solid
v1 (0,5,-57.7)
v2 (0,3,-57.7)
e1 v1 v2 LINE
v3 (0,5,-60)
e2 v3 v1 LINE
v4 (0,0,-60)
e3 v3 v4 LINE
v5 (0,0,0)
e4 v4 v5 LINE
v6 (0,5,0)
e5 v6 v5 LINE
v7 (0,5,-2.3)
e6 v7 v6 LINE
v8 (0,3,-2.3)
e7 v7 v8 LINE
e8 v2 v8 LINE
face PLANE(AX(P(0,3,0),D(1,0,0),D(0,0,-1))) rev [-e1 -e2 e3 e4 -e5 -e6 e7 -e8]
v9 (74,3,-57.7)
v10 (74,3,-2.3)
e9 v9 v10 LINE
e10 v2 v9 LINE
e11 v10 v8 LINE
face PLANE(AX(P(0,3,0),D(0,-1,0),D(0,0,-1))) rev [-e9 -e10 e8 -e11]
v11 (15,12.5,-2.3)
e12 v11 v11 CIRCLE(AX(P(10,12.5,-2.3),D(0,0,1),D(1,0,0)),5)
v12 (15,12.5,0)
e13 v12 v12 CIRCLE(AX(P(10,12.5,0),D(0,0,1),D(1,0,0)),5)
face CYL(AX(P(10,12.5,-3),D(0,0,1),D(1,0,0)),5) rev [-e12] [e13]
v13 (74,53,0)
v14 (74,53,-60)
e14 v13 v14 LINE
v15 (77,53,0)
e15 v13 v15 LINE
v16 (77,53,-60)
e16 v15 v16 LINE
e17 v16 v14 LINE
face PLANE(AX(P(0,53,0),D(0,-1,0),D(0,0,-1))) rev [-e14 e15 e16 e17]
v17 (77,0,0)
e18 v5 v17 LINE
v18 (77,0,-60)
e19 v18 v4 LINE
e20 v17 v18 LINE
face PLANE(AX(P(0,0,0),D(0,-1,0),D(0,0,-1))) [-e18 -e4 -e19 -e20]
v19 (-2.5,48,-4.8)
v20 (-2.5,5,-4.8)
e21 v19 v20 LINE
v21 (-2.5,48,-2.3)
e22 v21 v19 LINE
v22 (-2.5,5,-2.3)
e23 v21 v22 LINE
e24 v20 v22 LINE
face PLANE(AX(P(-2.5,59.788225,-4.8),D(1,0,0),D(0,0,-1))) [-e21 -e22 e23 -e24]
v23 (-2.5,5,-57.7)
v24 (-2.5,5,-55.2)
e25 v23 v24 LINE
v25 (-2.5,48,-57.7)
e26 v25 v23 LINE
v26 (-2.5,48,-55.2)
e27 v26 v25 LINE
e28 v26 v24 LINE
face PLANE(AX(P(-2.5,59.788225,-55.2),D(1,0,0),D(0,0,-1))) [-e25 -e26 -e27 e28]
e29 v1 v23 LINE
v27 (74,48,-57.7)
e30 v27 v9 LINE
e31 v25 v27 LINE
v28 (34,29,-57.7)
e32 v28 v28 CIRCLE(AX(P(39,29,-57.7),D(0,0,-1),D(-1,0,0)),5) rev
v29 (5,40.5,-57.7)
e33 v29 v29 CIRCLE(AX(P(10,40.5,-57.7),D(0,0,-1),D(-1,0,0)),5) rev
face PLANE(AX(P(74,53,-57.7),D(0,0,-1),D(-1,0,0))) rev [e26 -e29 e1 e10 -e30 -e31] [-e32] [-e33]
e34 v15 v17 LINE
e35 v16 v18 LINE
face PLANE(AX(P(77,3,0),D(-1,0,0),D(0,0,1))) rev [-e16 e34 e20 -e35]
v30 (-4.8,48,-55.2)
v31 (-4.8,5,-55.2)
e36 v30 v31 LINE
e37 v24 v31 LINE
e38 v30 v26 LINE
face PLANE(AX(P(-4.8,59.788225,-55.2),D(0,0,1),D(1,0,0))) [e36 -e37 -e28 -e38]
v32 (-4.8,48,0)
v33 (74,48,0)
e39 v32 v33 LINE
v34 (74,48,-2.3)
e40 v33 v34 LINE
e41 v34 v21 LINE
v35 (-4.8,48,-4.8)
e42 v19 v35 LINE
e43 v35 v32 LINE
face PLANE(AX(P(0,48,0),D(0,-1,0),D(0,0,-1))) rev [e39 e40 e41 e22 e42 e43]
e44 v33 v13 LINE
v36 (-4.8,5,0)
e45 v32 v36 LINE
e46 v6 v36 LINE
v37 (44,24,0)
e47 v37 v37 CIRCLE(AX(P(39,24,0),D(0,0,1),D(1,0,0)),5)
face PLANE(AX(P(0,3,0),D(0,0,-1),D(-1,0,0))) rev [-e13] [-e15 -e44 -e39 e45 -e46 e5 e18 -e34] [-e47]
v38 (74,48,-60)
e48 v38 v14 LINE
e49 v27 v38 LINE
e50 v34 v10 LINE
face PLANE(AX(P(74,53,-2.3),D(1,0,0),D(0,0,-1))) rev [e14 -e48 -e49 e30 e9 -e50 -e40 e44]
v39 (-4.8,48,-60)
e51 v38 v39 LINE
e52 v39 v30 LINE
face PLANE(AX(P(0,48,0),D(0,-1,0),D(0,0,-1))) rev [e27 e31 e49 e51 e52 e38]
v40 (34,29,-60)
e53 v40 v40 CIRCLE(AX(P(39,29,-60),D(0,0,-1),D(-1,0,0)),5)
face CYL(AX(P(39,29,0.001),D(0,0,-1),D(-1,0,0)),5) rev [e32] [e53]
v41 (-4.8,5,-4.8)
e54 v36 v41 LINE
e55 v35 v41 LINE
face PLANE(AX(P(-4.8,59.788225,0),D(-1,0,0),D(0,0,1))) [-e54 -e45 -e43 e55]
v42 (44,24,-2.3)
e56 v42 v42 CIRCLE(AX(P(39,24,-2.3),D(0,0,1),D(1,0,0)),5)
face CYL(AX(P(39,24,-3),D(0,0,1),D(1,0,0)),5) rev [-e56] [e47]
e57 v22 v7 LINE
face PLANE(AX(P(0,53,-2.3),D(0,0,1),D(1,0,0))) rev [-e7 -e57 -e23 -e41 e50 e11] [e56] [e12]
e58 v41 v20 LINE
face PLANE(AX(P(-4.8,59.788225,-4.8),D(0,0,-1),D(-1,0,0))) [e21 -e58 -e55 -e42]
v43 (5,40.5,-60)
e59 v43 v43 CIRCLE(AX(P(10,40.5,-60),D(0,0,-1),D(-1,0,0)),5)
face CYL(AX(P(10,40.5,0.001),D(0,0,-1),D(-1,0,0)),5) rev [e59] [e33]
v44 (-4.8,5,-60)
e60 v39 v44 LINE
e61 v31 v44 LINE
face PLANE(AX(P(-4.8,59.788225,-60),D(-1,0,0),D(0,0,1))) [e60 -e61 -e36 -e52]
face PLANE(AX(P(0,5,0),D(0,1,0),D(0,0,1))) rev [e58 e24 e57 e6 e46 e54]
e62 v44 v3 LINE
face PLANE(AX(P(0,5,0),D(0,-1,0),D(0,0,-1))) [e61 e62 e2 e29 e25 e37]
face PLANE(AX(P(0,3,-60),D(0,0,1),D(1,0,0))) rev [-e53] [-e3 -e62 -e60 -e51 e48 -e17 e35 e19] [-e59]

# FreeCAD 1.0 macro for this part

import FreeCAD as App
import Part
import Sketcher
Q = App.Units.Quantity

doc = App.newDocument("Part")
params = doc.addObject("Spreadsheet::Sheet", "Params")
for row, (alias, value) in enumerate([
    ("sketch1_width", "77 mm"),
    ("sketch1_height", "60 mm"),
    ("pad1_length", "3 mm"),
    ("sketch2_width", "77 mm"),
    ("sketch2_width2", "74 mm"),
    ("sketch2_height", "60 mm"),
    ("sketch2_height2", "2.3 mm"),
    ("pad2_length", "50 mm"),
    ("sketch3_width", "3 mm"),
    ("sketch3_height", "55.4 mm"),
    ("pad3_length", "74 mm"),
    ("sketch4_diameter", "10 mm"),
    ("sketch5_diameter", "10 mm"),
    ("sketch6_width", "4.8 mm"),
    ("sketch6_width2", "2.3 mm"),
    ("pad4_length", "48 mm"),
    ("sketch7_width", "5 mm"),
    ("sketch7_height", "10 mm"),
    ("sketch8_width", "2.5 mm"),
    ("sketch8_width2", "4.8 mm"),
    ("pocket4_length", "5 mm"),
    ("sketch9_diameter", "10 mm"),
    ("pocket5_length", "3 mm"),
    ("sketch10_width", "74 mm"),
    ("sketch10_height", "60 mm"),
    ("pocket6_length", "5 mm"),
], start=1):
    params.set(f"A{row}", alias)
    params.set(f"B{row}", "=" + value)
    params.setAlias(f"B{row}", alias)

body = doc.addObject("PartDesign::Body", "Body")

sketch1 = body.newObject("Sketcher::SketchObject", "Sketch")
sketch1.AttachmentSupport = (doc.getObject("XZ_Plane"), [""])
sketch1.MapMode = "FlatFace"
sketch1.addGeometry(Part.LineSegment(App.Vector(0, -60, 0), App.Vector(0, 0, 0)), False)
sketch1.addGeometry(Part.LineSegment(App.Vector(0, 0, 0), App.Vector(77, 0, 0)), False)
sketch1.addGeometry(Part.LineSegment(App.Vector(77, 0, 0), App.Vector(77, -60, 0)), False)
sketch1.addGeometry(Part.LineSegment(App.Vector(77, -60, 0), App.Vector(0, -60, 0)), False)
sketch1.addConstraint(Sketcher.Constraint("Coincident", 0, 2, 1, 1))
sketch1.addConstraint(Sketcher.Constraint("Coincident", 1, 2, 2, 1))
sketch1.addConstraint(Sketcher.Constraint("Coincident", 2, 2, 3, 1))
sketch1.addConstraint(Sketcher.Constraint("Coincident", 3, 2, 0, 1))
sketch1.addConstraint(Sketcher.Constraint("Vertical", 0))
sketch1.addConstraint(Sketcher.Constraint("Horizontal", 1))
sketch1.addConstraint(Sketcher.Constraint("Vertical", 2))
sketch1.addConstraint(Sketcher.Constraint("Horizontal", 3))
sketch1.addConstraint(Sketcher.Constraint("Coincident", 0, 2, -1, 1))
sketch1.addConstraint(Sketcher.Constraint("DistanceX", 1, 1, 1, 2, Q("77 mm")))
sketch1.addConstraint(Sketcher.Constraint("DistanceY", 0, 1, 0, 2, Q("60 mm")))
sketch1.setExpression("Constraints[9]", "Params.sketch1_width")
sketch1.setExpression("Constraints[10]", "Params.sketch1_height")
pad1 = body.newObject("PartDesign::Pad", "Pad")
pad1.Profile = sketch1
pad1.setExpression("Length", "Params.pad1_length")
pad1.Reversed = True

sketch2 = body.newObject("Sketcher::SketchObject", "Sketch001")
sketch2.AttachmentSupport = (doc.getObject("XZ_Plane"), [""])
sketch2.MapMode = "FlatFace"
sketch2.AttachmentOffset = App.Placement(App.Vector(0, 0, -3), App.Rotation())
sketch2.addGeometry(Part.LineSegment(App.Vector(77, -60, 0), App.Vector(0, -60, 0)), False)
sketch2.addGeometry(Part.LineSegment(App.Vector(0, -60, 0), App.Vector(0, -57.7, 0)), False)
sketch2.addGeometry(Part.LineSegment(App.Vector(0, -57.7, 0), App.Vector(74, -57.7, 0)), False)
sketch2.addGeometry(Part.LineSegment(App.Vector(74, -57.7, 0), App.Vector(74, -2.3, 0)), False)
sketch2.addGeometry(Part.LineSegment(App.Vector(74, -2.3, 0), App.Vector(0, -2.3, 0)), False)
sketch2.addGeometry(Part.LineSegment(App.Vector(0, -2.3, 0), App.Vector(0, 0, 0)), False)
sketch2.addGeometry(Part.LineSegment(App.Vector(0, 0, 0), App.Vector(77, 0, 0)), False)
sketch2.addGeometry(Part.LineSegment(App.Vector(77, 0, 0), App.Vector(77, -60, 0)), False)
sketch2.addConstraint(Sketcher.Constraint("Coincident", 0, 2, 1, 1))
sketch2.addConstraint(Sketcher.Constraint("Coincident", 1, 2, 2, 1))
sketch2.addConstraint(Sketcher.Constraint("Coincident", 2, 2, 3, 1))
sketch2.addConstraint(Sketcher.Constraint("Coincident", 3, 2, 4, 1))
sketch2.addConstraint(Sketcher.Constraint("Coincident", 4, 2, 5, 1))
sketch2.addConstraint(Sketcher.Constraint("Coincident", 5, 2, 6, 1))
sketch2.addConstraint(Sketcher.Constraint("Coincident", 6, 2, 7, 1))
sketch2.addConstraint(Sketcher.Constraint("Coincident", 7, 2, 0, 1))
sketch2.addConstraint(Sketcher.Constraint("Horizontal", 0))
sketch2.addConstraint(Sketcher.Constraint("Vertical", 1))
sketch2.addConstraint(Sketcher.Constraint("Horizontal", 2))
sketch2.addConstraint(Sketcher.Constraint("Vertical", 3))
sketch2.addConstraint(Sketcher.Constraint("Horizontal", 4))
sketch2.addConstraint(Sketcher.Constraint("Vertical", 5))
sketch2.addConstraint(Sketcher.Constraint("Horizontal", 6))
sketch2.addConstraint(Sketcher.Constraint("Vertical", 7))
sketch2.addConstraint(Sketcher.Constraint("Coincident", 5, 2, -1, 1))
sketch2.addConstraint(Sketcher.Constraint("PointOnObject", 0, 2, -2))
sketch2.addConstraint(Sketcher.Constraint("Equal", 1, 5))
sketch2.addConstraint(Sketcher.Constraint("DistanceX", 0, 2, 0, 1, Q("77 mm")))
sketch2.addConstraint(Sketcher.Constraint("DistanceX", 2, 1, 2, 2, Q("74 mm")))
sketch2.addConstraint(Sketcher.Constraint("DistanceY", 7, 2, 7, 1, Q("60 mm")))
sketch2.addConstraint(Sketcher.Constraint("DistanceY", 1, 1, 1, 2, Q("2.3 mm")))
sketch2.setExpression("Constraints[19]", "Params.sketch2_width")
sketch2.setExpression("Constraints[20]", "Params.sketch2_width2")
sketch2.setExpression("Constraints[21]", "Params.sketch2_height")
sketch2.setExpression("Constraints[22]", "Params.sketch2_height2")
pad2 = body.newObject("PartDesign::Pad", "Pad001")
pad2.Profile = sketch2
pad2.setExpression("Length", "Params.pad2_length")
pad2.Reversed = True

sketch3 = body.newObject("Sketcher::SketchObject", "Sketch002")
sketch3.AttachmentSupport = (doc.getObject("YZ_Plane"), [""])
sketch3.MapMode = "FlatFace"
sketch3.AttachmentOffset = App.Placement(App.Vector(0, 0, 74), App.Rotation())
sketch3.addGeometry(Part.LineSegment(App.Vector(53, -57.7, 0), App.Vector(50, -57.7, 0)), False)
sketch3.addGeometry(Part.LineSegment(App.Vector(50, -57.7, 0), App.Vector(50, -2.3, 0)), False)
sketch3.addGeometry(Part.LineSegment(App.Vector(50, -2.3, 0), App.Vector(53, -2.3, 0)), False)
sketch3.addGeometry(Part.LineSegment(App.Vector(53, -2.3, 0), App.Vector(53, -57.7, 0)), False)
sketch3.addConstraint(Sketcher.Constraint("Coincident", 0, 2, 1, 1))
sketch3.addConstraint(Sketcher.Constraint("Coincident", 1, 2, 2, 1))
sketch3.addConstraint(Sketcher.Constraint("Coincident", 2, 2, 3, 1))
sketch3.addConstraint(Sketcher.Constraint("Coincident", 3, 2, 0, 1))
sketch3.addConstraint(Sketcher.Constraint("Horizontal", 0))
sketch3.addConstraint(Sketcher.Constraint("Vertical", 1))
sketch3.addConstraint(Sketcher.Constraint("Horizontal", 2))
sketch3.addConstraint(Sketcher.Constraint("Vertical", 3))
sketch3.addConstraint(Sketcher.Constraint("DistanceX", 0, 2, 0, 1, Q("3 mm")))
sketch3.addConstraint(Sketcher.Constraint("DistanceY", 1, 1, 1, 2, Q("55.4 mm")))
sketch3.addConstraint(Sketcher.Constraint("DistanceX", -1, 1, 0, 2, Q("50 mm")))
sketch3.addConstraint(Sketcher.Constraint("DistanceY", 0, 2, -1, 1, Q("57.7 mm")))
sketch3.setExpression("Constraints[8]", "Params.sketch3_width")
sketch3.setExpression("Constraints[9]", "Params.sketch3_height")
pad3 = body.newObject("PartDesign::Pad", "Pad002")
pad3.Profile = sketch3
pad3.setExpression("Length", "Params.pad3_length")
pad3.Reversed = True

sketch4 = body.newObject("Sketcher::SketchObject", "Sketch003")
sketch4.AttachmentSupport = (doc.getObject("XY_Plane"), [""])
sketch4.MapMode = "FlatFace"
sketch4.AttachmentOffset = App.Placement(App.Vector(0, 0, -60), App.Rotation())
sketch4.addGeometry(Part.Circle(App.Vector(39, 29, 0), App.Vector(0, 0, 1), 5), False)
sketch4.addConstraint(Sketcher.Constraint("Diameter", 0, Q("10 mm")))
sketch4.addConstraint(Sketcher.Constraint("DistanceX", -1, 1, 0, 3, Q("39 mm")))
sketch4.addConstraint(Sketcher.Constraint("DistanceY", -1, 1, 0, 3, Q("29 mm")))
sketch4.setExpression("Constraints[0]", "Params.sketch4_diameter")
pocket1 = body.newObject("PartDesign::Pocket", "Pocket")
pocket1.Profile = sketch4
pocket1.Type = "UpToFirst"
pocket1.Reversed = True

sketch5 = body.newObject("Sketcher::SketchObject", "Sketch004")
sketch5.AttachmentSupport = (doc.getObject("XY_Plane"), [""])
sketch5.MapMode = "FlatFace"
sketch5.AttachmentOffset = App.Placement(App.Vector(0, 0, -60), App.Rotation())
sketch5.addGeometry(Part.Circle(App.Vector(10, 40, 0), App.Vector(0, 0, 1), 5), False)
sketch5.addConstraint(Sketcher.Constraint("Diameter", 0, Q("10 mm")))
sketch5.addConstraint(Sketcher.Constraint("DistanceX", -1, 1, 0, 3, Q("10 mm")))
sketch5.addConstraint(Sketcher.Constraint("DistanceY", -1, 1, 0, 3, Q("40.5 mm")))
sketch5.setExpression("Constraints[0]", "Params.sketch5_diameter")
pocket2 = body.newObject("PartDesign::Pocket", "Pocket001")
pocket2.Profile = sketch5
pocket2.Type = "UpToFirst"
pocket2.Reversed = True

sketch6 = body.newObject("Sketcher::SketchObject", "Sketch005")
sketch6.AttachmentSupport = (doc.getObject("XZ_Plane"), [""])
sketch6.MapMode = "FlatFace"
sketch6.addGeometry(Part.LineSegment(App.Vector(0, 0, 0), App.Vector(-4.8, 0, 0)), False)
sketch6.addGeometry(Part.LineSegment(App.Vector(-4.8, 0, 0), App.Vector(-4.8, -4.8, 0)), False)
sketch6.addGeometry(Part.LineSegment(App.Vector(-4.8, -4.8, 0), App.Vector(-2.5, -4.8, 0)), False)
sketch6.addGeometry(Part.LineSegment(App.Vector(-2.5, -4.8, 0), App.Vector(-2.5, -2.3, 0)), False)
sketch6.addGeometry(Part.LineSegment(App.Vector(-2.5, -2.3, 0), App.Vector(0, -2.3, 0)), False)
sketch6.addGeometry(Part.LineSegment(App.Vector(0, -2.3, 0), App.Vector(0, 0, 0)), False)
sketch6.addGeometry(Part.LineSegment(App.Vector(0, -60, 0), App.Vector(0, -57.7, 0)), False)
sketch6.addGeometry(Part.LineSegment(App.Vector(0, -57.7, 0), App.Vector(-2.5, -57.7, 0)), False)
sketch6.addGeometry(Part.LineSegment(App.Vector(-2.5, -57.7, 0), App.Vector(-2.5, -55.2, 0)), False)
sketch6.addGeometry(Part.LineSegment(App.Vector(-2.5, -55.2, 0), App.Vector(-4.8, -55.2, 0)), False)
sketch6.addGeometry(Part.LineSegment(App.Vector(-4.8, -55.2, 0), App.Vector(-4.8, -60, 0)), False)
sketch6.addGeometry(Part.LineSegment(App.Vector(-4.8, -60, 0), App.Vector(0, -60, 0)), False)
sketch6.addConstraint(Sketcher.Constraint("Coincident", 0, 2, 1, 1))
sketch6.addConstraint(Sketcher.Constraint("Coincident", 1, 2, 2, 1))
sketch6.addConstraint(Sketcher.Constraint("Coincident", 2, 2, 3, 1))
sketch6.addConstraint(Sketcher.Constraint("Coincident", 3, 2, 4, 1))
sketch6.addConstraint(Sketcher.Constraint("Coincident", 4, 2, 5, 1))
sketch6.addConstraint(Sketcher.Constraint("Coincident", 5, 2, 0, 1))
sketch6.addConstraint(Sketcher.Constraint("Coincident", 6, 2, 7, 1))
sketch6.addConstraint(Sketcher.Constraint("Coincident", 7, 2, 8, 1))
sketch6.addConstraint(Sketcher.Constraint("Coincident", 8, 2, 9, 1))
sketch6.addConstraint(Sketcher.Constraint("Coincident", 9, 2, 10, 1))
sketch6.addConstraint(Sketcher.Constraint("Coincident", 10, 2, 11, 1))
sketch6.addConstraint(Sketcher.Constraint("Coincident", 11, 2, 6, 1))
sketch6.addConstraint(Sketcher.Constraint("Horizontal", 0))
sketch6.addConstraint(Sketcher.Constraint("Vertical", 1))
sketch6.addConstraint(Sketcher.Constraint("Horizontal", 2))
sketch6.addConstraint(Sketcher.Constraint("Vertical", 3))
sketch6.addConstraint(Sketcher.Constraint("Horizontal", 4))
sketch6.addConstraint(Sketcher.Constraint("Vertical", 5))
sketch6.addConstraint(Sketcher.Constraint("Vertical", 6))
sketch6.addConstraint(Sketcher.Constraint("Horizontal", 7))
sketch6.addConstraint(Sketcher.Constraint("Vertical", 8))
sketch6.addConstraint(Sketcher.Constraint("Horizontal", 9))
sketch6.addConstraint(Sketcher.Constraint("Vertical", 10))
sketch6.addConstraint(Sketcher.Constraint("Horizontal", 11))
sketch6.addConstraint(Sketcher.Constraint("Coincident", 5, 2, -1, 1))
sketch6.addConstraint(Sketcher.Constraint("PointOnObject", 6, 2, -2))
sketch6.addConstraint(Sketcher.Constraint("Vertical", 3, 2, 7, 2))
sketch6.addConstraint(Sketcher.Constraint("Vertical", 1, 2, 9, 2))
sketch6.addConstraint(Sketcher.Constraint("Equal", 11, 1))
sketch6.addConstraint(Sketcher.Constraint("Equal", 7, 3))
sketch6.addConstraint(Sketcher.Constraint("Equal", 5, 6))
sketch6.addConstraint(Sketcher.Constraint("Equal", 3, 8))
sketch6.addConstraint(Sketcher.Constraint("DistanceX", 0, 2, 0, 1, Q("4.8 mm")))
sketch6.addConstraint(Sketcher.Constraint("DistanceX", 2, 1, 2, 2, Q("2.3 mm")))
sketch6.addConstraint(Sketcher.Constraint("DistanceY", 10, 2, -1, 1, Q("60 mm")))
sketch6.setExpression("Constraints[32]", "Params.sketch6_width")
sketch6.setExpression("Constraints[33]", "Params.sketch6_width2")
pad4 = body.newObject("PartDesign::Pad", "Pad003")
pad4.Profile = sketch6
pad4.setExpression("Length", "Params.pad4_length")
pad4.Reversed = True

sketch7 = body.newObject("Sketcher::SketchObject", "Sketch006")
sketch7.AttachmentSupport = (doc.getObject("XZ_Plane"), [""])
sketch7.MapMode = "FlatFace"
sketch7.AttachmentOffset = App.Placement(App.Vector(0, 0, -53), App.Rotation())
sketch7.addGeometry(Part.LineSegment(App.Vector(0, -35, 0), App.Vector(0, -25, 0)), False)
sketch7.addGeometry(Part.LineSegment(App.Vector(0, -25, 0), App.Vector(5, -25, 0)), False)
sketch7.addGeometry(Part.LineSegment(App.Vector(5, -25, 0), App.Vector(5, -35, 0)), False)
sketch7.addGeometry(Part.LineSegment(App.Vector(5, -35, 0), App.Vector(0, -35, 0)), False)
sketch7.addConstraint(Sketcher.Constraint("Coincident", 0, 2, 1, 1))
sketch7.addConstraint(Sketcher.Constraint("Coincident", 1, 2, 2, 1))
sketch7.addConstraint(Sketcher.Constraint("Coincident", 2, 2, 3, 1))
sketch7.addConstraint(Sketcher.Constraint("Coincident", 3, 2, 0, 1))
sketch7.addConstraint(Sketcher.Constraint("Vertical", 0))
sketch7.addConstraint(Sketcher.Constraint("Horizontal", 1))
sketch7.addConstraint(Sketcher.Constraint("Vertical", 2))
sketch7.addConstraint(Sketcher.Constraint("Horizontal", 3))
sketch7.addConstraint(Sketcher.Constraint("PointOnObject", 0, 2, -2))
sketch7.addConstraint(Sketcher.Constraint("DistanceX", 1, 1, 1, 2, Q("5 mm")))
sketch7.addConstraint(Sketcher.Constraint("DistanceY", 0, 1, 0, 2, Q("10 mm")))
sketch7.addConstraint(Sketcher.Constraint("DistanceY", 0, 2, -1, 1, Q("25 mm")))
sketch7.setExpression("Constraints[9]", "Params.sketch7_width")
sketch7.setExpression("Constraints[10]", "Params.sketch7_height")
pocket3 = body.newObject("PartDesign::Pocket", "Pocket002")
pocket3.Profile = sketch7
pocket3.Type = "UpToFirst"
pocket3.Reversed = True

sketch8 = body.newObject("Sketcher::SketchObject", "Sketch007")
sketch8.AttachmentSupport = (doc.getObject("XZ_Plane"), [""])
sketch8.MapMode = "FlatFace"
sketch8.addGeometry(Part.LineSegment(App.Vector(-2.5, -2.3, 0), App.Vector(0, -2.3, 0)), False)
sketch8.addGeometry(Part.LineSegment(App.Vector(0, -2.3, 0), App.Vector(0, 0, 0)), False)
sketch8.addGeometry(Part.LineSegment(App.Vector(0, 0, 0), App.Vector(-4.8, 0, 0)), False)
sketch8.addGeometry(Part.LineSegment(App.Vector(-4.8, 0, 0), App.Vector(-4.8, -4.8, 0)), False)
sketch8.addGeometry(Part.LineSegment(App.Vector(-4.8, -4.8, 0), App.Vector(-2.5, -4.8, 0)), False)
sketch8.addGeometry(Part.LineSegment(App.Vector(-2.5, -4.8, 0), App.Vector(-2.5, -2.3, 0)), False)
sketch8.addGeometry(Part.LineSegment(App.Vector(0, -60, 0), App.Vector(0, -57.7, 0)), False)
sketch8.addGeometry(Part.LineSegment(App.Vector(0, -57.7, 0), App.Vector(-2.5, -57.7, 0)), False)
sketch8.addGeometry(Part.LineSegment(App.Vector(-2.5, -57.7, 0), App.Vector(-2.5, -55.2, 0)), False)
sketch8.addGeometry(Part.LineSegment(App.Vector(-2.5, -55.2, 0), App.Vector(-4.8, -55.2, 0)), False)
sketch8.addGeometry(Part.LineSegment(App.Vector(-4.8, -55.2, 0), App.Vector(-4.8, -60, 0)), False)
sketch8.addGeometry(Part.LineSegment(App.Vector(-4.8, -60, 0), App.Vector(0, -60, 0)), False)
sketch8.addConstraint(Sketcher.Constraint("Coincident", 0, 2, 1, 1))
sketch8.addConstraint(Sketcher.Constraint("Coincident", 1, 2, 2, 1))
sketch8.addConstraint(Sketcher.Constraint("Coincident", 2, 2, 3, 1))
sketch8.addConstraint(Sketcher.Constraint("Coincident", 3, 2, 4, 1))
sketch8.addConstraint(Sketcher.Constraint("Coincident", 4, 2, 5, 1))
sketch8.addConstraint(Sketcher.Constraint("Coincident", 5, 2, 0, 1))
sketch8.addConstraint(Sketcher.Constraint("Coincident", 6, 2, 7, 1))
sketch8.addConstraint(Sketcher.Constraint("Coincident", 7, 2, 8, 1))
sketch8.addConstraint(Sketcher.Constraint("Coincident", 8, 2, 9, 1))
sketch8.addConstraint(Sketcher.Constraint("Coincident", 9, 2, 10, 1))
sketch8.addConstraint(Sketcher.Constraint("Coincident", 10, 2, 11, 1))
sketch8.addConstraint(Sketcher.Constraint("Coincident", 11, 2, 6, 1))
sketch8.addConstraint(Sketcher.Constraint("Horizontal", 0))
sketch8.addConstraint(Sketcher.Constraint("Vertical", 1))
sketch8.addConstraint(Sketcher.Constraint("Horizontal", 2))
sketch8.addConstraint(Sketcher.Constraint("Vertical", 3))
sketch8.addConstraint(Sketcher.Constraint("Horizontal", 4))
sketch8.addConstraint(Sketcher.Constraint("Vertical", 5))
sketch8.addConstraint(Sketcher.Constraint("Vertical", 6))
sketch8.addConstraint(Sketcher.Constraint("Horizontal", 7))
sketch8.addConstraint(Sketcher.Constraint("Vertical", 8))
sketch8.addConstraint(Sketcher.Constraint("Horizontal", 9))
sketch8.addConstraint(Sketcher.Constraint("Vertical", 10))
sketch8.addConstraint(Sketcher.Constraint("Horizontal", 11))
sketch8.addConstraint(Sketcher.Constraint("Coincident", 1, 2, -1, 1))
sketch8.addConstraint(Sketcher.Constraint("PointOnObject", 6, 2, -2))
sketch8.addConstraint(Sketcher.Constraint("Vertical", 5, 2, 7, 2))
sketch8.addConstraint(Sketcher.Constraint("Vertical", 3, 2, 9, 2))
sketch8.addConstraint(Sketcher.Constraint("Equal", 9, 1))
sketch8.addConstraint(Sketcher.Constraint("Equal", 11, 3))
sketch8.addConstraint(Sketcher.Constraint("Equal", 1, 6))
sketch8.addConstraint(Sketcher.Constraint("Equal", 5, 8))
sketch8.addConstraint(Sketcher.Constraint("DistanceX", 0, 1, 0, 2, Q("2.5 mm")))
sketch8.addConstraint(Sketcher.Constraint("DistanceX", 2, 2, 2, 1, Q("4.8 mm")))
sketch8.addConstraint(Sketcher.Constraint("DistanceY", 10, 2, -1, 1, Q("60 mm")))
sketch8.setExpression("Constraints[32]", "Params.sketch8_width")
sketch8.setExpression("Constraints[33]", "Params.sketch8_width2")
pocket4 = body.newObject("PartDesign::Pocket", "Pocket003")
pocket4.Profile = sketch8
pocket4.setExpression("Length", "Params.pocket4_length")

sketch9 = body.newObject("Sketcher::SketchObject", "Sketch008")
sketch9.AttachmentSupport = (doc.getObject("XY_Plane"), [""])
sketch9.MapMode = "FlatFace"
sketch9.addGeometry(Part.Circle(App.Vector(10, 12, 0), App.Vector(0, 0, 1), 5), False)
sketch9.addGeometry(Part.Circle(App.Vector(39, 24, 0), App.Vector(0, 0, 1), 5), False)
sketch9.addConstraint(Sketcher.Constraint("Equal", 0, 1))
sketch9.addConstraint(Sketcher.Constraint("Diameter", 0, Q("10 mm")))
sketch9.addConstraint(Sketcher.Constraint("DistanceX", -1, 1, 0, 3, Q("10 mm")))
sketch9.addConstraint(Sketcher.Constraint("DistanceX", -1, 1, 1, 3, Q("39 mm")))
sketch9.addConstraint(Sketcher.Constraint("DistanceY", -1, 1, 1, 3, Q("24 mm")))
sketch9.addConstraint(Sketcher.Constraint("DistanceY", -1, 1, 0, 3, Q("12.5 mm")))
sketch9.setExpression("Constraints[1]", "Params.sketch9_diameter")
pocket5 = body.newObject("PartDesign::Pocket", "Pocket004")
pocket5.Profile = sketch9
pocket5.setExpression("Length", "Params.pocket5_length")

sketch10 = body.newObject("Sketcher::SketchObject", "Sketch009")
sketch10.AttachmentSupport = (doc.getObject("XZ_Plane"), [""])
sketch10.MapMode = "FlatFace"
sketch10.AttachmentOffset = App.Placement(App.Vector(0, 0, -53), App.Rotation())
sketch10.addGeometry(Part.LineSegment(App.Vector(0, -60, 0), App.Vector(0, 0, 0)), False)
sketch10.addGeometry(Part.LineSegment(App.Vector(0, 0, 0), App.Vector(74, 0, 0)), False)
sketch10.addGeometry(Part.LineSegment(App.Vector(74, 0, 0), App.Vector(74, -60, 0)), False)
sketch10.addGeometry(Part.LineSegment(App.Vector(74, -60, 0), App.Vector(0, -60, 0)), False)
sketch10.addConstraint(Sketcher.Constraint("Coincident", 0, 2, 1, 1))
sketch10.addConstraint(Sketcher.Constraint("Coincident", 1, 2, 2, 1))
sketch10.addConstraint(Sketcher.Constraint("Coincident", 2, 2, 3, 1))
sketch10.addConstraint(Sketcher.Constraint("Coincident", 3, 2, 0, 1))
sketch10.addConstraint(Sketcher.Constraint("Vertical", 0))
sketch10.addConstraint(Sketcher.Constraint("Horizontal", 1))
sketch10.addConstraint(Sketcher.Constraint("Vertical", 2))
sketch10.addConstraint(Sketcher.Constraint("Horizontal", 3))
sketch10.addConstraint(Sketcher.Constraint("Coincident", 0, 2, -1, 1))
sketch10.addConstraint(Sketcher.Constraint("DistanceX", 1, 1, 1, 2, Q("74 mm")))
sketch10.addConstraint(Sketcher.Constraint("DistanceY", 0, 1, 0, 2, Q("60 mm")))
sketch10.setExpression("Constraints[9]", "Params.sketch10_width")
sketch10.setExpression("Constraints[10]", "Params.sketch10_height")
pocket6 = body.newObject("PartDesign::Pocket", "Pocket005")
pocket6.Profile = sketch10
pocket6.setExpression("Length", "Params.pocket6_length")
pocket6.Reversed = True

doc.recompute()
